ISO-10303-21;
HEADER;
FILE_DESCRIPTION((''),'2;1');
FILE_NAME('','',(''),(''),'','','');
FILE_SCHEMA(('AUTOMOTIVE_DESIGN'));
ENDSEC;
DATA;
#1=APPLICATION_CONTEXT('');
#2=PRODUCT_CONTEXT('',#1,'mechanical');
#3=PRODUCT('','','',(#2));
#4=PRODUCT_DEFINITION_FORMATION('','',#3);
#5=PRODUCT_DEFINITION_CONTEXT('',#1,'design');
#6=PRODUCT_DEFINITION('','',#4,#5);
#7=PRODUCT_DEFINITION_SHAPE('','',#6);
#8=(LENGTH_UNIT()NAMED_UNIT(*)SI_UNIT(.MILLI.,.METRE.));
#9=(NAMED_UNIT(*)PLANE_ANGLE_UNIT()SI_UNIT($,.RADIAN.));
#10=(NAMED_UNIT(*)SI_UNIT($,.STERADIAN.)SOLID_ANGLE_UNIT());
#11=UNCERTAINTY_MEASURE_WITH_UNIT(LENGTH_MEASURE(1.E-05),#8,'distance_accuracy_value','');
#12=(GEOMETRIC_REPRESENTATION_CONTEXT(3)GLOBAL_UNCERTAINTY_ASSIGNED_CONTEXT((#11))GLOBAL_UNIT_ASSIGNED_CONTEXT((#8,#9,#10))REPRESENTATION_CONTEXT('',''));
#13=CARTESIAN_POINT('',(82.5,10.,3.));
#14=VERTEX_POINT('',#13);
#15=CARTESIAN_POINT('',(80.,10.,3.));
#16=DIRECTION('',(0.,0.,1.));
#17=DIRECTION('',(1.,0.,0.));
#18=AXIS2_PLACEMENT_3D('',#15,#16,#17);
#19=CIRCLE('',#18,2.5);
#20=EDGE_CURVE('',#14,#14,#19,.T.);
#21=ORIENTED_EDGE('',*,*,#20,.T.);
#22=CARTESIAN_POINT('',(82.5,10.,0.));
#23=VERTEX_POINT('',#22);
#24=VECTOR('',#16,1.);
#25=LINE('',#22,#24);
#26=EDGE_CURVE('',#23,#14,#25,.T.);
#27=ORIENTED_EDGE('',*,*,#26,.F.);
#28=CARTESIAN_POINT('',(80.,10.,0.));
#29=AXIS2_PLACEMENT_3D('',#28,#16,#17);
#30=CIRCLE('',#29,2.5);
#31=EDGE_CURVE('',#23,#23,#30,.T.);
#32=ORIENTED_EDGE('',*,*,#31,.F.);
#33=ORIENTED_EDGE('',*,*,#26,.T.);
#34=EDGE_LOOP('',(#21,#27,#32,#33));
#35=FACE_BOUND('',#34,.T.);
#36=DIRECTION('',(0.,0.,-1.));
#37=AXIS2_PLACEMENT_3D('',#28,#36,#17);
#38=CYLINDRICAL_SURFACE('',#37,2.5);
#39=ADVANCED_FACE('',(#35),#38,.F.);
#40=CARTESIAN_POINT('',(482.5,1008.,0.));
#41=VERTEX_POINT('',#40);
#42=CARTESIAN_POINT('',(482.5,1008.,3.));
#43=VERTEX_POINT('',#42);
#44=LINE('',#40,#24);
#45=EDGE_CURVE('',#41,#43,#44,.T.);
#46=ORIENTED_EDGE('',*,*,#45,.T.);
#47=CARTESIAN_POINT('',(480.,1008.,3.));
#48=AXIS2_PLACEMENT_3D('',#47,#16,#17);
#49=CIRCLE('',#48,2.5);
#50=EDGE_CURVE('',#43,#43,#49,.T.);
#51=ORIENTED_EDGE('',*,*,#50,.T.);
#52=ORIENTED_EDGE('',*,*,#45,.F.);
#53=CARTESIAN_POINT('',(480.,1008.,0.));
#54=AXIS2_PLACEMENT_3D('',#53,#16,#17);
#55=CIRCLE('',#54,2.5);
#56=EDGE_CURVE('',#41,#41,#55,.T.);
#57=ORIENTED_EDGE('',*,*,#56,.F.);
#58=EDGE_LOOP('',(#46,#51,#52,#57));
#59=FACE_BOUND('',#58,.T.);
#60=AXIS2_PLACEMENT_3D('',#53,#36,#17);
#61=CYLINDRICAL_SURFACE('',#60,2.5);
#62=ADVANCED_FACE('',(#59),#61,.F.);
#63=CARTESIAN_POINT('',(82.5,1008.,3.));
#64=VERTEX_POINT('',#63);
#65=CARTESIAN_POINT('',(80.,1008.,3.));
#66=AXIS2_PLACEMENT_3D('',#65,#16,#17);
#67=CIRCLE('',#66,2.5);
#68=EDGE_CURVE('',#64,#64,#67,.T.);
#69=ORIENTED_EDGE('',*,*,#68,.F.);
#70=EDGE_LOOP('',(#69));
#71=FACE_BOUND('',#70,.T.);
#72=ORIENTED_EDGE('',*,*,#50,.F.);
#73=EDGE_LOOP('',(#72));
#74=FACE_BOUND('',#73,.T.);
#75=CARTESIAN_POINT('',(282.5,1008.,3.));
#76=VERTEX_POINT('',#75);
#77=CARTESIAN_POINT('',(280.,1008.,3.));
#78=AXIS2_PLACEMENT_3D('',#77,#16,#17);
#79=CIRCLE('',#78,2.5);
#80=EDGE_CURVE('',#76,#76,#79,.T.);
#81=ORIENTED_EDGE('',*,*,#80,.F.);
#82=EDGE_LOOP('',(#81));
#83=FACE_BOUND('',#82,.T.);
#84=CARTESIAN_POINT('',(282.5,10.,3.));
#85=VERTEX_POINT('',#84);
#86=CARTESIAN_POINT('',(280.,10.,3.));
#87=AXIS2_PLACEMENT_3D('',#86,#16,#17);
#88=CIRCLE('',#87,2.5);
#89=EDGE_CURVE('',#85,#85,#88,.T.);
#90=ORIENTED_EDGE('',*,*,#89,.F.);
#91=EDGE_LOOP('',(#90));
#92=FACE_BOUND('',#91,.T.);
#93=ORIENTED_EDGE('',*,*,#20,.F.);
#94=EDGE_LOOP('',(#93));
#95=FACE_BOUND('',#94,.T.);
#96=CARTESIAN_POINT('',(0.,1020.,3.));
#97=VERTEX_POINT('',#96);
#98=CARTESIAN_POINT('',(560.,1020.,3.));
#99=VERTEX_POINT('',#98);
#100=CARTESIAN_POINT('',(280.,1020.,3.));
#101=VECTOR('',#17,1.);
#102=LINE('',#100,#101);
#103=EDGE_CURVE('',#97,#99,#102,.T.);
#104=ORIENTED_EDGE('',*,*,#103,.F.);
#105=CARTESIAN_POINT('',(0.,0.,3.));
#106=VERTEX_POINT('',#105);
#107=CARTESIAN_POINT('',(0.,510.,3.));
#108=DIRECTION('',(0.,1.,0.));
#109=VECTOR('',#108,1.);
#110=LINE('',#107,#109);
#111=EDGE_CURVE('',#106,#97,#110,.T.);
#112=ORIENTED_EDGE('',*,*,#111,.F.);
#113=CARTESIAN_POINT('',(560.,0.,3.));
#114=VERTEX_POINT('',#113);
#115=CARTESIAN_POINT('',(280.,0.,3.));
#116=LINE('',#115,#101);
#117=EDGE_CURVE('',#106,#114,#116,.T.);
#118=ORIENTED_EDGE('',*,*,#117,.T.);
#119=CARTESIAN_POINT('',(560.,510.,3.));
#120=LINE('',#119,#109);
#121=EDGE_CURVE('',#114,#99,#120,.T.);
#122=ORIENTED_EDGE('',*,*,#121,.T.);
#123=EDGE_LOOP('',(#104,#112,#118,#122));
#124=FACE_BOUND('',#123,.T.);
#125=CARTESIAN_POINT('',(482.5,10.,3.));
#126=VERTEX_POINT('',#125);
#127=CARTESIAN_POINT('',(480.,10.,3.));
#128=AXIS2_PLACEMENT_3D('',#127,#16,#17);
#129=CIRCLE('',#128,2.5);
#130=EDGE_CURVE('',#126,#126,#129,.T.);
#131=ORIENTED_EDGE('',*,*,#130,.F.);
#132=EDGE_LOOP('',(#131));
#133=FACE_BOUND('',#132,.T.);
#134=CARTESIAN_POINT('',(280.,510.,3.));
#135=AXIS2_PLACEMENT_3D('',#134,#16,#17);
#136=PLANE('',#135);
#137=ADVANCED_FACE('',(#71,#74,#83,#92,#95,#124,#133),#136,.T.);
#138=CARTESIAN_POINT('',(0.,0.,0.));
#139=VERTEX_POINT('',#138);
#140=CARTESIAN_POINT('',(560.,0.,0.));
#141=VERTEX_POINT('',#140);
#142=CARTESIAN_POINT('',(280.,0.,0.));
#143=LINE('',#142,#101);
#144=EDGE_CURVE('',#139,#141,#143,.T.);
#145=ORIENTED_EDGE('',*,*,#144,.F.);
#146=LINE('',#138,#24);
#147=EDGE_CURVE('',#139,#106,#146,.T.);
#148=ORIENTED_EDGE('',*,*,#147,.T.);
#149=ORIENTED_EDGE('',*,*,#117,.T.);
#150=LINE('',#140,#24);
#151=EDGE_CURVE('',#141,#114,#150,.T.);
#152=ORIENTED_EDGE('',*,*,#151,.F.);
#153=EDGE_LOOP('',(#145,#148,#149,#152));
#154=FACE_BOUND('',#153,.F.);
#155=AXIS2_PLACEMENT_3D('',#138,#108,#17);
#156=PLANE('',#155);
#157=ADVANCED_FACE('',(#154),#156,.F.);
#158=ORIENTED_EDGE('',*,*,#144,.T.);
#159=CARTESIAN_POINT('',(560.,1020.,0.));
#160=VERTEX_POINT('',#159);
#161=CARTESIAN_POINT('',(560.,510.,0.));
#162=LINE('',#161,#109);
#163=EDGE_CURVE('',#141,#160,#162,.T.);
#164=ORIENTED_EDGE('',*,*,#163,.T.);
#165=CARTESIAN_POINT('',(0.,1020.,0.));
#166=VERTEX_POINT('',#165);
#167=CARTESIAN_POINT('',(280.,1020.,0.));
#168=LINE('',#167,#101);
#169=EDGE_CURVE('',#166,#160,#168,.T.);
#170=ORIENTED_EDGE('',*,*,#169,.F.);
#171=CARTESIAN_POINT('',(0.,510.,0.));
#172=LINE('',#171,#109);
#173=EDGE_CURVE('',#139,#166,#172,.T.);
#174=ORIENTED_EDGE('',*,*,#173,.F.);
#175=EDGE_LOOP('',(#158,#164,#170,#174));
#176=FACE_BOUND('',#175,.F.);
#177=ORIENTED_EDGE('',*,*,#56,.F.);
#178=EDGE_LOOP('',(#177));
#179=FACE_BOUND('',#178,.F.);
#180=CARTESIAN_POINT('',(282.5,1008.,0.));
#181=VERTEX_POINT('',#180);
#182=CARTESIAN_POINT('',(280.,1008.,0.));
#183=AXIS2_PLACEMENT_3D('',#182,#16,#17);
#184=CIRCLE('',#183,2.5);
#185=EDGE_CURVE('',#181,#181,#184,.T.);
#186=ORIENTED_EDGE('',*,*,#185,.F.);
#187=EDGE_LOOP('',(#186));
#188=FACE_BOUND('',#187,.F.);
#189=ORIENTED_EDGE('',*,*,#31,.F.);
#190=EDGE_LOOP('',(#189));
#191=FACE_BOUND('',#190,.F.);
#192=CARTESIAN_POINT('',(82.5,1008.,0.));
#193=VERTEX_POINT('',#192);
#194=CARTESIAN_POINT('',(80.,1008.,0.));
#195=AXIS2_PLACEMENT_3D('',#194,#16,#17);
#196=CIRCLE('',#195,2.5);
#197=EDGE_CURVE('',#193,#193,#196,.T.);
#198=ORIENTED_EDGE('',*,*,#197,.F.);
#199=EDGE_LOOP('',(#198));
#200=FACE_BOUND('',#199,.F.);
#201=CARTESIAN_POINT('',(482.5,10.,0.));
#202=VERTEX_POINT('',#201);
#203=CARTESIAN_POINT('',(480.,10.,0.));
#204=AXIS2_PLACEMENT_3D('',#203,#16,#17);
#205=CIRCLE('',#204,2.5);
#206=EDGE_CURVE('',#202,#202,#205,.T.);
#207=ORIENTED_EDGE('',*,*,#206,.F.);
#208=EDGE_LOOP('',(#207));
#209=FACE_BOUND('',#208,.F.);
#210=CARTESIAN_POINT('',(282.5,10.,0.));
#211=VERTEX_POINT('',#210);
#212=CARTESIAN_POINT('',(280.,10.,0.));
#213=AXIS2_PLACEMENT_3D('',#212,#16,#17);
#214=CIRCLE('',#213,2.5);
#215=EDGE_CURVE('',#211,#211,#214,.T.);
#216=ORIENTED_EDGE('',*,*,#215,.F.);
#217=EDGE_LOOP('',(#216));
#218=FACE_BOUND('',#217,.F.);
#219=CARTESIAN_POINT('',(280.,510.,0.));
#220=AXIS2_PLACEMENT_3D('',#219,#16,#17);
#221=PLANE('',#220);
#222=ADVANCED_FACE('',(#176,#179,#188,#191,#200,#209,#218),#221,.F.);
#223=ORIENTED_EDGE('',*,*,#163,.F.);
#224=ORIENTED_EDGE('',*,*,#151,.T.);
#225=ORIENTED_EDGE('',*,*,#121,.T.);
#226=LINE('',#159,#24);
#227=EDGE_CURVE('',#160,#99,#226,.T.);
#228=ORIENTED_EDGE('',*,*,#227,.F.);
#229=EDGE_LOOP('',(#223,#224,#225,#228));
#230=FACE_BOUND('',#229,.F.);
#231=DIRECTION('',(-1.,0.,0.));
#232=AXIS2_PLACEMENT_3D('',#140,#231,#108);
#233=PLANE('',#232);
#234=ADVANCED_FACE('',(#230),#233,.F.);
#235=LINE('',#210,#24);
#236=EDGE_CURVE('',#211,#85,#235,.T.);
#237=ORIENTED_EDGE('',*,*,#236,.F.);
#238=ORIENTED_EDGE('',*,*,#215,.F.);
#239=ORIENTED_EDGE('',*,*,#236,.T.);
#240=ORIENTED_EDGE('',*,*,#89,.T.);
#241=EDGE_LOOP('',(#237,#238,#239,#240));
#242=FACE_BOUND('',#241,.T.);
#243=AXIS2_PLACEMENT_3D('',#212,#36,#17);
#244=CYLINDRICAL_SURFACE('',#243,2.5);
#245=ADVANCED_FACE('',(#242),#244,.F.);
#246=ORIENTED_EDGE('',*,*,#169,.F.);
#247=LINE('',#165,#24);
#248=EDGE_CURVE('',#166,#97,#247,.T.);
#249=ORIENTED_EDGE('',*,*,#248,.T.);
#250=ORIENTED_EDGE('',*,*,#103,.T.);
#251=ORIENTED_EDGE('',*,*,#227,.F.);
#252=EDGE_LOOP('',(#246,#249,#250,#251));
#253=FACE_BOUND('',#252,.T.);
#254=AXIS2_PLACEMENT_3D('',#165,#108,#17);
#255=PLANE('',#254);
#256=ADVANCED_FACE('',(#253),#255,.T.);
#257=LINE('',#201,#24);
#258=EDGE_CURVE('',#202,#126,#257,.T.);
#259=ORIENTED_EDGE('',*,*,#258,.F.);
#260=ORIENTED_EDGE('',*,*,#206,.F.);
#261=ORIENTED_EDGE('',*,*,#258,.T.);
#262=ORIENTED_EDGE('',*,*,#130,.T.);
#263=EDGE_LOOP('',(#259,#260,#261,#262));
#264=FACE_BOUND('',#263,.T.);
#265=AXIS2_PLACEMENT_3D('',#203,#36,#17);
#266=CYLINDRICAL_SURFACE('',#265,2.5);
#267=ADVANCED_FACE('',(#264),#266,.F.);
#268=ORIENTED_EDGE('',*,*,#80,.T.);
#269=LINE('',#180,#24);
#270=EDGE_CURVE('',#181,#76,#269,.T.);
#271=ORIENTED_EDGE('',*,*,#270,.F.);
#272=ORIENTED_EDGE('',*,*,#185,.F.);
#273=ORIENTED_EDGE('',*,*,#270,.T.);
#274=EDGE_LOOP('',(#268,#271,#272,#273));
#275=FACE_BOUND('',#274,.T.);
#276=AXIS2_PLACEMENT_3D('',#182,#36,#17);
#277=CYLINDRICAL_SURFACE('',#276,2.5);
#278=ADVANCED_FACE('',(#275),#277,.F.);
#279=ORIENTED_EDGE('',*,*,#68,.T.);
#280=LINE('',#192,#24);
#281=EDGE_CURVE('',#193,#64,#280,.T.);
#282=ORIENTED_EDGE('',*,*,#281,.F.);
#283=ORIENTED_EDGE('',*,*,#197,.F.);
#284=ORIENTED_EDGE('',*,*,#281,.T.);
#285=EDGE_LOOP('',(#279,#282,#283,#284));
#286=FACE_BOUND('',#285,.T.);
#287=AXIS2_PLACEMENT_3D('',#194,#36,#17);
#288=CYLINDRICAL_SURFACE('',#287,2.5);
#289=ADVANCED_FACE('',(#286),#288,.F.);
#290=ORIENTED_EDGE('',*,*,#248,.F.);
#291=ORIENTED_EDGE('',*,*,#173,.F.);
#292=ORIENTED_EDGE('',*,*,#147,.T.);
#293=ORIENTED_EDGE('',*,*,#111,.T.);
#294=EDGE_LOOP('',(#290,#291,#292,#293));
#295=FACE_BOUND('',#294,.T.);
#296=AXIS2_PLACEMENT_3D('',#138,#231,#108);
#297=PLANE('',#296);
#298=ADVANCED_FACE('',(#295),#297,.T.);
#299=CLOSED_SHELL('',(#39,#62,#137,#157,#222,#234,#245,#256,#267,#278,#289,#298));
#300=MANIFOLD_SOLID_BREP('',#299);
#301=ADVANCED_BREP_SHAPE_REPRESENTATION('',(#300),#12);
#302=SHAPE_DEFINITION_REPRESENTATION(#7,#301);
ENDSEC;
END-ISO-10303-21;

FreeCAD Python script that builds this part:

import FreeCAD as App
import Part
import Sketcher
from FreeCAD import Vector

doc = App.newDocument("Part")
body = doc.addObject("PartDesign::Body", "Body")

sketch1 = body.newObject("Sketcher::SketchObject", "Sketch")
sketch1.AttachmentSupport = (doc.getObject("XY_Plane"), [""])
sketch1.MapMode = "FlatFace"
sketch1.addGeometry([
    Part.LineSegment(Vector(0, 1020, 0), Vector(0, 0, 0)),
    Part.LineSegment(Vector(0, 0, 0), Vector(560, 0, 0)),
    Part.LineSegment(Vector(560, 0, 0), Vector(560, 1020, 0)),
    Part.LineSegment(Vector(560, 1020, 0), Vector(0, 1020, 0)),
    Part.Circle(Vector(80, 10, 0), Vector(0, 0, 1), 2.5),
    Part.Circle(Vector(280, 10, 0), Vector(0, 0, 1), 2.5),
    Part.Circle(Vector(480, 10, 0), Vector(0, 0, 1), 2.5),
    Part.Circle(Vector(80, 1008, 0), Vector(0, 0, 1), 2.5),
    Part.Circle(Vector(280, 1008, 0), Vector(0, 0, 1), 2.5),
    Part.Circle(Vector(480, 1008, 0), Vector(0, 0, 1), 2.5),
], False)
sketch1.addConstraint([
    Sketcher.Constraint("Coincident", 0, 2, 1, 1),
    Sketcher.Constraint("Coincident", 1, 2, 2, 1),
    Sketcher.Constraint("Coincident", 2, 2, 3, 1),
    Sketcher.Constraint("Coincident", 3, 2, 0, 1),
    Sketcher.Constraint("Vertical", 0),
    Sketcher.Constraint("Horizontal", 1),
    Sketcher.Constraint("Vertical", 2),
    Sketcher.Constraint("Horizontal", 3),
    Sketcher.Constraint("Coincident", 0, 2, -1, 1),
    Sketcher.Constraint("Equal", 4, 5),
    Sketcher.Constraint("Equal", 5, 6),
    Sketcher.Constraint("Equal", 6, 7),
    Sketcher.Constraint("Equal", 7, 8),
    Sketcher.Constraint("Equal", 8, 9),
    Sketcher.Constraint("Horizontal", 4, 3, 5, 3),
    Sketcher.Constraint("Horizontal", 5, 3, 6, 3),
    Sketcher.Constraint("Horizontal", 7, 3, 8, 3),
    Sketcher.Constraint("Horizontal", 8, 3, 9, 3),
    Sketcher.Constraint("Vertical", 4, 3, 7, 3),
    Sketcher.Constraint("Vertical", 5, 3, 8, 3),
    Sketcher.Constraint("Vertical", 6, 3, 9, 3),
    Sketcher.Constraint("Diameter", 4, 5.0),
    Sketcher.Constraint("DistanceX", 1, 1, 1, 2, 560.0),
    Sketcher.Constraint("DistanceY", 0, 2, 0, 1, 1020.0),
    Sketcher.Constraint("DistanceX", -1, 1, 4, 3, 80.0),
    Sketcher.Constraint("DistanceY", -1, 1, 4, 3, 10.0),
    Sketcher.Constraint("DistanceX", -1, 1, 5, 3, 280.0),
    Sketcher.Constraint("DistanceX", -1, 1, 6, 3, 480.0),
    Sketcher.Constraint("DistanceY", -1, 1, 7, 3, 1008.0),
])
pad1 = body.newObject("PartDesign::Pad", "Pad")
pad1.Profile = sketch1
pad1.Length = 3

doc.recompute()
